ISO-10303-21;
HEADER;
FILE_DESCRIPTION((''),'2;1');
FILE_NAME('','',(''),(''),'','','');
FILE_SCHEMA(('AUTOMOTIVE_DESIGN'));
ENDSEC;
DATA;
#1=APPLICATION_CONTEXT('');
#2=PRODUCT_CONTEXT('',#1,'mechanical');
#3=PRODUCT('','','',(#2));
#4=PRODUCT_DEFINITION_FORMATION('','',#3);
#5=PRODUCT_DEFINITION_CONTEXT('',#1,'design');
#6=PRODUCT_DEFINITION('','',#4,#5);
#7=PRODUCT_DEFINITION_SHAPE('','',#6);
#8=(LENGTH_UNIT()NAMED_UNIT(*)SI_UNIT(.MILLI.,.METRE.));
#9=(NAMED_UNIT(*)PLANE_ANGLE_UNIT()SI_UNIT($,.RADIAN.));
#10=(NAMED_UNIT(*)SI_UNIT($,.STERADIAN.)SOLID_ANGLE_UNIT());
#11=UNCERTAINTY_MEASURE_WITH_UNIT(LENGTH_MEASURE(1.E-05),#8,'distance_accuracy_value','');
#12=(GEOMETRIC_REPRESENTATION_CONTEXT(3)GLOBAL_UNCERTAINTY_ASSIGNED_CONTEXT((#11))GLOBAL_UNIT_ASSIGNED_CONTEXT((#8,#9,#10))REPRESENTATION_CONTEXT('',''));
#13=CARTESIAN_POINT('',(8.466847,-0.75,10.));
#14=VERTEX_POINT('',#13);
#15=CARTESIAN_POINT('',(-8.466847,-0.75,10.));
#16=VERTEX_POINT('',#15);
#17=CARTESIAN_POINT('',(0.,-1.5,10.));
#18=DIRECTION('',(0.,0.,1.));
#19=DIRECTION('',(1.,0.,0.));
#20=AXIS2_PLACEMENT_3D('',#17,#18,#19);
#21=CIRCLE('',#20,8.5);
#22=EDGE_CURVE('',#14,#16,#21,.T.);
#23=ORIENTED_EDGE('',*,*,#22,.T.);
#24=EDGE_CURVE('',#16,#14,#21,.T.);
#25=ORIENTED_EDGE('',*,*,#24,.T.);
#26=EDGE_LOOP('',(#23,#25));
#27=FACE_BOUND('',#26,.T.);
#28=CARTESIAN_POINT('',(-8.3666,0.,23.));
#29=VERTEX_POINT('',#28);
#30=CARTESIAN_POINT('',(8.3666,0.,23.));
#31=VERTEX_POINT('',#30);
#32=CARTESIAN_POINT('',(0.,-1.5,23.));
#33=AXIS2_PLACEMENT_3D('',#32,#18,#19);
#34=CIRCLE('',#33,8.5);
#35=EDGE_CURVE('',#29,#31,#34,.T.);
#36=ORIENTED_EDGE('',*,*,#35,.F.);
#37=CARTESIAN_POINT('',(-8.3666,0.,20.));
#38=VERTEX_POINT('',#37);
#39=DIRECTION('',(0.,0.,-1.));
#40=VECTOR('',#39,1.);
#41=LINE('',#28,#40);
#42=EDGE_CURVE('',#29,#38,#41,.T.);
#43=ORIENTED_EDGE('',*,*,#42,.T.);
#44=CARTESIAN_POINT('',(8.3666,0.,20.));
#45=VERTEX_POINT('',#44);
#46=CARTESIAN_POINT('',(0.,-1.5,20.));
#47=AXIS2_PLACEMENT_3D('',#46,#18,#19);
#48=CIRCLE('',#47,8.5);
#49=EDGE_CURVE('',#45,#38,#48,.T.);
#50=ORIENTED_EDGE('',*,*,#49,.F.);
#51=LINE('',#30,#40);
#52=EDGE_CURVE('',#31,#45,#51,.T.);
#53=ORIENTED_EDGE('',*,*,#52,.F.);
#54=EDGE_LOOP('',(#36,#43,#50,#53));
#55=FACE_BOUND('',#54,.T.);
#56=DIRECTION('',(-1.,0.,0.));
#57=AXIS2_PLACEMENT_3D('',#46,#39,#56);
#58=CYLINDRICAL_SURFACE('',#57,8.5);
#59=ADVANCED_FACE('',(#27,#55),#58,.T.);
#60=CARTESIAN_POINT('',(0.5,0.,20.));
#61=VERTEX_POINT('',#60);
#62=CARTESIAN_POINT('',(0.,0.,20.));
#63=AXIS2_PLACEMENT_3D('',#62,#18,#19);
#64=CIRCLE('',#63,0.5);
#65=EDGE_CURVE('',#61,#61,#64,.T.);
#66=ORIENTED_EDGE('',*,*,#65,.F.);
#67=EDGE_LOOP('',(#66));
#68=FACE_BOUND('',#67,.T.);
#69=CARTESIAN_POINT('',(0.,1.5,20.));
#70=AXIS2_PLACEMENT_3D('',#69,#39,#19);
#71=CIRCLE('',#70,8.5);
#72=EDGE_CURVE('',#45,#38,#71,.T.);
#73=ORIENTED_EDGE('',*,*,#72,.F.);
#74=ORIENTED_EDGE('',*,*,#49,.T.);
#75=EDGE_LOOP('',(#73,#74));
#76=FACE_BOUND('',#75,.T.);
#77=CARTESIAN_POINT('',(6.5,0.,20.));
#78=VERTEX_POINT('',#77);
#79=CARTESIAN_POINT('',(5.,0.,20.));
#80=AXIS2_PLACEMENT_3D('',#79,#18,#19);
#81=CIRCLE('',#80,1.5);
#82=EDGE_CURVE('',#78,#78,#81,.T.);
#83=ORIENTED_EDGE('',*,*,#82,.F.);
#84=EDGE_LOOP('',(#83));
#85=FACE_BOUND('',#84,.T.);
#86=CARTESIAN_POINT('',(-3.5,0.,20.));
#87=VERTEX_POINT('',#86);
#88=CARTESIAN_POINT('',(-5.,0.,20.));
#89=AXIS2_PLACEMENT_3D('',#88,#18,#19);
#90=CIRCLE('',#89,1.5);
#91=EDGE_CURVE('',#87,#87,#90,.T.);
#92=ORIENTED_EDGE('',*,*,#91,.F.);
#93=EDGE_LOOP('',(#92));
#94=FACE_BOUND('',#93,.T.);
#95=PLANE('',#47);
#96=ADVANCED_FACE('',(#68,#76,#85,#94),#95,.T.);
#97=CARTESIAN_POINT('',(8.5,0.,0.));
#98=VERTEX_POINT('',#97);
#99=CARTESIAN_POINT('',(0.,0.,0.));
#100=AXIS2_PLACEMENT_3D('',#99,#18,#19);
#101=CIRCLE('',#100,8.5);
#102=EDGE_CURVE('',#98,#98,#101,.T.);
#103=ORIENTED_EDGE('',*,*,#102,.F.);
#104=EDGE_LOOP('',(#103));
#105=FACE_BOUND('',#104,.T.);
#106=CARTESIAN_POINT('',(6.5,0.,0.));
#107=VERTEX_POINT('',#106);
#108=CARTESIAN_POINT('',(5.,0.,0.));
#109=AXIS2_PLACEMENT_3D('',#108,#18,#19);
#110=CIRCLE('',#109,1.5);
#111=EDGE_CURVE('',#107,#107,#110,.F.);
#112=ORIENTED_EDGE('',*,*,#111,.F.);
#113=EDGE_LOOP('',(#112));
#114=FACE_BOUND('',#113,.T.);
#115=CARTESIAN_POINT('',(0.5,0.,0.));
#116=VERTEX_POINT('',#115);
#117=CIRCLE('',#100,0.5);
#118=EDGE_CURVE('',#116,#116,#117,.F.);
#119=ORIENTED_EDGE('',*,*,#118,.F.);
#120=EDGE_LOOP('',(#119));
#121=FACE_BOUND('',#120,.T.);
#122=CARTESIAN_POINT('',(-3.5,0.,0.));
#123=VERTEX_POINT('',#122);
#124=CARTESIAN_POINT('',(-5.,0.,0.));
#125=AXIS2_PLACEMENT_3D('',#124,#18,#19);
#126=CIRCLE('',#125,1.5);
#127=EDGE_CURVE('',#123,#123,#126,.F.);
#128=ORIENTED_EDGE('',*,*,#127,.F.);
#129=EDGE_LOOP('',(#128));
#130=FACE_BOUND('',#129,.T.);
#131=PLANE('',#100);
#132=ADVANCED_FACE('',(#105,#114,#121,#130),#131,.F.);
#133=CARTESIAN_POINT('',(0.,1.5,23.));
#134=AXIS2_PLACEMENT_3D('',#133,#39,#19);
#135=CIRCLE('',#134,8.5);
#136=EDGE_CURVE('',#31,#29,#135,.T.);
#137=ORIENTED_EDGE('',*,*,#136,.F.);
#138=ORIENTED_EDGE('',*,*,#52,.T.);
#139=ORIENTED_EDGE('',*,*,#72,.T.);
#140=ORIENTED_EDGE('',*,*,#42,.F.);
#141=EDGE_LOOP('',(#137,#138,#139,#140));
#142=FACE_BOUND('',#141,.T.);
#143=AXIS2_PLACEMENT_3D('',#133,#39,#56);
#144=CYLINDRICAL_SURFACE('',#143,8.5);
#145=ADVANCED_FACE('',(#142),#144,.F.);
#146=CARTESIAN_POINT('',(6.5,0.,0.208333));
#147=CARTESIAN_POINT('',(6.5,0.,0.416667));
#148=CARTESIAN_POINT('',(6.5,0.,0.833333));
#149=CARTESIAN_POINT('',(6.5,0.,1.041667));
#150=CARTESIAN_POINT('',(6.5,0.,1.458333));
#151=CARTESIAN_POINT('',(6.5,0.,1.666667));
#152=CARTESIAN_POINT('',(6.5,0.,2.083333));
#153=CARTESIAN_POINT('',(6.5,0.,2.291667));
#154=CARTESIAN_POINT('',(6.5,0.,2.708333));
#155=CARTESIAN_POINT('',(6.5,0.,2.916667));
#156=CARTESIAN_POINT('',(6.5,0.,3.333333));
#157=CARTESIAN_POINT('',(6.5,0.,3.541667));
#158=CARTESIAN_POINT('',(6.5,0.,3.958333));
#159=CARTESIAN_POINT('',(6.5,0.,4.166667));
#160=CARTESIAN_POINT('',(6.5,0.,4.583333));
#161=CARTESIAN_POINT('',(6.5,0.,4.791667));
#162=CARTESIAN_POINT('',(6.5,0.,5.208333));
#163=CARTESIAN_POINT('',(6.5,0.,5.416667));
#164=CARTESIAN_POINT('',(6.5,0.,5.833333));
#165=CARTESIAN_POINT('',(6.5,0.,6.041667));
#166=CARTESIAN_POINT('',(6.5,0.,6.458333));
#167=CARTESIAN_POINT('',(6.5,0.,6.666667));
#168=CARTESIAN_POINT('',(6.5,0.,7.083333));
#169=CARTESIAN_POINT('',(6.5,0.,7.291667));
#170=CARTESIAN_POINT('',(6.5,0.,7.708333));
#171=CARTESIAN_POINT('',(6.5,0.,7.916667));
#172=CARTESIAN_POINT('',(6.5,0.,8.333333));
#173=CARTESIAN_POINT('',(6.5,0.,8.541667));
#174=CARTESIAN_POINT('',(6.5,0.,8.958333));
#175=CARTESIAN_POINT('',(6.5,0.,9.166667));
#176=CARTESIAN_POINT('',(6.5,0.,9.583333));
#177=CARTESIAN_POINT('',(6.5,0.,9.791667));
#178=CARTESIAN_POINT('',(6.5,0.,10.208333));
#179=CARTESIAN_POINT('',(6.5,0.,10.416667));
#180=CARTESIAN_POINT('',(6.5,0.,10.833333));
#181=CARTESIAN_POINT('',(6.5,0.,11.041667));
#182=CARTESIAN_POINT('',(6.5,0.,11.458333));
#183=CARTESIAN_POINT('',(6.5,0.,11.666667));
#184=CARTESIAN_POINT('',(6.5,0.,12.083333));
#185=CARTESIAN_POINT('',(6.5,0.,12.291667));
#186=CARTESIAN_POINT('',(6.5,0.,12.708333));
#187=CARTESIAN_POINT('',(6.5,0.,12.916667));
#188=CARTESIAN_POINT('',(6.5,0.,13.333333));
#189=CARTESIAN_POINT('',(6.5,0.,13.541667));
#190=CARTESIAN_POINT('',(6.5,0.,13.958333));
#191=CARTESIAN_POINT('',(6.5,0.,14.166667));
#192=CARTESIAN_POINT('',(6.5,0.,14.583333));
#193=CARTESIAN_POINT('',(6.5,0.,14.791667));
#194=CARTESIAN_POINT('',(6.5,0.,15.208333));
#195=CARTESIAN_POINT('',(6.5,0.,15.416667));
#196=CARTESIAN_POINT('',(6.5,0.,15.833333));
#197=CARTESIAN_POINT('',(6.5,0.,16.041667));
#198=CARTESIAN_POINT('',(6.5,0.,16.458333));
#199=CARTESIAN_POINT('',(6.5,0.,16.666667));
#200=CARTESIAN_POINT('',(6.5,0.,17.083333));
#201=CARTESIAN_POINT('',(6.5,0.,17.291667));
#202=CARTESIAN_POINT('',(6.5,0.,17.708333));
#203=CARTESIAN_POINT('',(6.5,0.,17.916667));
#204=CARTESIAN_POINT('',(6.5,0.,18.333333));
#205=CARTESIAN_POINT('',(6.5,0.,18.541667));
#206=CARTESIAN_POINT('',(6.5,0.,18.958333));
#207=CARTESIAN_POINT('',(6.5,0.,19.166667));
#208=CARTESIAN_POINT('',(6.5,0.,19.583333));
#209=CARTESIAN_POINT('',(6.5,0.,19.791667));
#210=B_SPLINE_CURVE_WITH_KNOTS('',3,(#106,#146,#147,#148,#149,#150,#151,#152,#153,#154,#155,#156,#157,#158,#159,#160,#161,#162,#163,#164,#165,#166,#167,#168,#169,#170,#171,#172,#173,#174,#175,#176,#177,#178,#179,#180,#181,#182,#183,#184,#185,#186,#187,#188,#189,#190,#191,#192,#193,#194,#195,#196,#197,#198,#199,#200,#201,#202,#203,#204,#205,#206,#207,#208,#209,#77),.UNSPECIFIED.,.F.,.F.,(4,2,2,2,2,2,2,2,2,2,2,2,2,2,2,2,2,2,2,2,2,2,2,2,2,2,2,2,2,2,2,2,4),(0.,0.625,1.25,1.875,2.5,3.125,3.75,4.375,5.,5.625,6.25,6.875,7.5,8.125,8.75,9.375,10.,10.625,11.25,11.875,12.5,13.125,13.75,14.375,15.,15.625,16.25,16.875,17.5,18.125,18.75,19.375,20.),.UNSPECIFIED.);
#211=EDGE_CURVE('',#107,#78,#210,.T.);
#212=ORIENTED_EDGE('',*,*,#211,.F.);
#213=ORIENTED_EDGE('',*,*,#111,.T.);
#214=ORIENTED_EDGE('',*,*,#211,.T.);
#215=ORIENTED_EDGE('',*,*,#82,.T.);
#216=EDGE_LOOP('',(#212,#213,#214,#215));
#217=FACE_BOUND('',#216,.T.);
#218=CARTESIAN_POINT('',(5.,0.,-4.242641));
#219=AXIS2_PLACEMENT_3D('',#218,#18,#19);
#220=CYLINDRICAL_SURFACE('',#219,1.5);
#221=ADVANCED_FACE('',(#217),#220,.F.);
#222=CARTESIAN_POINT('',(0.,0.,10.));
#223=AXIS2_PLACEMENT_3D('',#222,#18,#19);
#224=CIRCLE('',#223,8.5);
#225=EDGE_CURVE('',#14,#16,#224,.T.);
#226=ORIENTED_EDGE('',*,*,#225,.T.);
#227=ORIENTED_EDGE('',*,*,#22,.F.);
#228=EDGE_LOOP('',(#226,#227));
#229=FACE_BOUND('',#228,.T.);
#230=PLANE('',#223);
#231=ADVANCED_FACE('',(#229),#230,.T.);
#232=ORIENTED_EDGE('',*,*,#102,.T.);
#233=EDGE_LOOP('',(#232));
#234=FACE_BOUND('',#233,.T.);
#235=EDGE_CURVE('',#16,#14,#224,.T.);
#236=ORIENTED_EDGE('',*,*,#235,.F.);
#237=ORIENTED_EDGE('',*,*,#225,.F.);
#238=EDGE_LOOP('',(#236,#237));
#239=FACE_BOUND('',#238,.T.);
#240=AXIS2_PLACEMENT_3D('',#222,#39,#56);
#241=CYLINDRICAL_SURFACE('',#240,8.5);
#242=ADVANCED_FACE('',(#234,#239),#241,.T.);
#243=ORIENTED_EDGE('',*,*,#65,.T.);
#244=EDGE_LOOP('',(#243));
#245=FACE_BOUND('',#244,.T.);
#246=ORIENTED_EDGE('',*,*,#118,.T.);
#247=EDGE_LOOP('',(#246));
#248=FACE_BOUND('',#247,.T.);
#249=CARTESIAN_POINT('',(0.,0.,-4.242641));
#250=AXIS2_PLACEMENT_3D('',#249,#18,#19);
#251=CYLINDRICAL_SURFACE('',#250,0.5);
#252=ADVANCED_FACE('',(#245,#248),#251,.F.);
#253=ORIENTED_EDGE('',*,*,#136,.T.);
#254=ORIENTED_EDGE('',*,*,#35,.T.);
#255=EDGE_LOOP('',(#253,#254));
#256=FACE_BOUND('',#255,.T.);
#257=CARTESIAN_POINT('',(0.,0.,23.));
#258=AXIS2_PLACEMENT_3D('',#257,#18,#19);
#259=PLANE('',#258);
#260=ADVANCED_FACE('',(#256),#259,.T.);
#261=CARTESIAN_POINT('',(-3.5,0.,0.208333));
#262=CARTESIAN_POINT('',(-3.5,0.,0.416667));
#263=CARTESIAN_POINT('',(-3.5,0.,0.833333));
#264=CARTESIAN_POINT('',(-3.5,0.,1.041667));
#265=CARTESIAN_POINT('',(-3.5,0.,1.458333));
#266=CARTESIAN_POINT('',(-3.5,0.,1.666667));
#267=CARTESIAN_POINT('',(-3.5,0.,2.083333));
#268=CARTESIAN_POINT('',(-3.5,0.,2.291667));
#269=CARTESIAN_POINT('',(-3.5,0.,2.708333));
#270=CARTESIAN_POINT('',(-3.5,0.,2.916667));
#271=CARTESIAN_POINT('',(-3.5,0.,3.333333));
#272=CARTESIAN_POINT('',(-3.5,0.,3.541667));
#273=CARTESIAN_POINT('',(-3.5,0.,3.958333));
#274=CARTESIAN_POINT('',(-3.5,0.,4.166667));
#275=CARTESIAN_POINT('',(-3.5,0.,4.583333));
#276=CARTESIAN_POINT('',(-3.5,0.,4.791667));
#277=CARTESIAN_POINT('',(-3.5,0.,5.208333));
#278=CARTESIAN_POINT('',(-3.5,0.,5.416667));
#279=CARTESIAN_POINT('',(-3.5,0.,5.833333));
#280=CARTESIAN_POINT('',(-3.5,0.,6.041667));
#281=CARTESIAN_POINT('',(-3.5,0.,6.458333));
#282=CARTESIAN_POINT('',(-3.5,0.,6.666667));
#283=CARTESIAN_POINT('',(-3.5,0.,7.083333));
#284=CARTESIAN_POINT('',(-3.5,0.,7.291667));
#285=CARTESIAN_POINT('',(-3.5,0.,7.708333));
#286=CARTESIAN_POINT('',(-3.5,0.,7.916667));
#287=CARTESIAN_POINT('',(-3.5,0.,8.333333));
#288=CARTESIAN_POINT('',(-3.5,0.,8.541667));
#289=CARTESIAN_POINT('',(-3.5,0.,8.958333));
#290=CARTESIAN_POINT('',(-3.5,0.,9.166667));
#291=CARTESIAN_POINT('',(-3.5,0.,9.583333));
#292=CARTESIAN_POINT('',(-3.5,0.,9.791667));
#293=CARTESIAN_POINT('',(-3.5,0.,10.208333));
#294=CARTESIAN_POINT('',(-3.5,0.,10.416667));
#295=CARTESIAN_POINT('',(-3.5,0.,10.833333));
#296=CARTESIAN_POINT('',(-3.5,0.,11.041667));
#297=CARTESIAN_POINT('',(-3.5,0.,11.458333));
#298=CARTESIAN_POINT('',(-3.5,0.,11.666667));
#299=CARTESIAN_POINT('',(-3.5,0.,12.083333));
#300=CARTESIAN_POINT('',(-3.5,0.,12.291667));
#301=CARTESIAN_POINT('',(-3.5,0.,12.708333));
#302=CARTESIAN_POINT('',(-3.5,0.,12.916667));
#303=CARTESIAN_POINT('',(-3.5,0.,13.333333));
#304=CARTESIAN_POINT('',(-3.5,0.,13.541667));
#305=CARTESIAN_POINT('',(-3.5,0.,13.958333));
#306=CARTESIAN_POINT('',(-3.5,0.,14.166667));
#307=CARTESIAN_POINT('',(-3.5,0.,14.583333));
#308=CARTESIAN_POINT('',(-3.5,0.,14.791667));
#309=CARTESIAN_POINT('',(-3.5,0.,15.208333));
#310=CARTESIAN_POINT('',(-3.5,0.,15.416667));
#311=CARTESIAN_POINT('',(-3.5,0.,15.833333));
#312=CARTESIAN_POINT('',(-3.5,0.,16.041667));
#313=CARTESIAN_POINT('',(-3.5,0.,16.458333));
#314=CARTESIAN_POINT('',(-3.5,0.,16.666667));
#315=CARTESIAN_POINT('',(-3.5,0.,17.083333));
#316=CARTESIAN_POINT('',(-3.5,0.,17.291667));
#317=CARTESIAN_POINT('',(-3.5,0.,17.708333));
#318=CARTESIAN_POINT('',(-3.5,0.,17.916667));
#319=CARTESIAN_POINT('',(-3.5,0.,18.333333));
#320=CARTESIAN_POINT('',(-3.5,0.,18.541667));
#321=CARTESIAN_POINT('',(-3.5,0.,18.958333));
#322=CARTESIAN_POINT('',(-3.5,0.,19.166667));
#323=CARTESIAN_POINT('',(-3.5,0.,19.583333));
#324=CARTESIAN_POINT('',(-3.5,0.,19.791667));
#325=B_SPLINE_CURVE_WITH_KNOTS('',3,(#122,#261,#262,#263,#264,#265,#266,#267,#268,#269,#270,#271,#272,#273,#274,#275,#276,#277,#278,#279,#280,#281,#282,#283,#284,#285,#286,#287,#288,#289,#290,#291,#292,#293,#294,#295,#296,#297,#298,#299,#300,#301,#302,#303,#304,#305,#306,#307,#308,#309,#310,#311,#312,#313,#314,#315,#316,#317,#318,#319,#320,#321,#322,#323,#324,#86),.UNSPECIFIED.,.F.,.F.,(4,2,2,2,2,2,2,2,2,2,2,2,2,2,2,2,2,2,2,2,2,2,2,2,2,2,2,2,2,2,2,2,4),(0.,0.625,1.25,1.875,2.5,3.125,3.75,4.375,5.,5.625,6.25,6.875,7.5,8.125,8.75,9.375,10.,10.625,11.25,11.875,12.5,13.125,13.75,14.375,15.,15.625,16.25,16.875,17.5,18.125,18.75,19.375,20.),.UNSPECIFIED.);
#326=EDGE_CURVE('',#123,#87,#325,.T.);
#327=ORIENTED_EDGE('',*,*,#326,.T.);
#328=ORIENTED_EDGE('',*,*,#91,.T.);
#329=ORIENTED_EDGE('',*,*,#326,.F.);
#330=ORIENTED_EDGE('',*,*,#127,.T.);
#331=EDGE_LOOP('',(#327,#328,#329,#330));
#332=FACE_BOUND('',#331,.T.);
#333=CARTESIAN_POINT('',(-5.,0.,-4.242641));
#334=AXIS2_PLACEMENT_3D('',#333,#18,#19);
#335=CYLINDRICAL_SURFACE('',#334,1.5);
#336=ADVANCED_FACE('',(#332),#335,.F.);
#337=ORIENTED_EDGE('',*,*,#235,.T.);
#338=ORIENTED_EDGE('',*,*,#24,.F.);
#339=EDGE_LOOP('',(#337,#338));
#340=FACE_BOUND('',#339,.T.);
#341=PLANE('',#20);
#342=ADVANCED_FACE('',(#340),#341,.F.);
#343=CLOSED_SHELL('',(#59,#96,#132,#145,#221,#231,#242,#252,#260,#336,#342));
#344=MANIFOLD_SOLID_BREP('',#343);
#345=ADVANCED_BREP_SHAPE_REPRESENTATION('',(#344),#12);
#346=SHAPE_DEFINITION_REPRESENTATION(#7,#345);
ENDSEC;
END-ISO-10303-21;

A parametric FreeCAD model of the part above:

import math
import FreeCAD as App
import Part
import Sketcher

V = App.Vector

doc = App.newDocument("Part")
params = doc.addObject("Spreadsheet::Sheet", "Params")
for row, (alias, value) in enumerate([
    ("sketch1_diameter", "17 mm"),
    ("pad1_length", "10 mm"),
    ("sketch2_diameter", "17 mm"),
    ("pad2_length", "10 mm"),
    ("sketch3_diameter", "1 mm"),
    ("sketch3_diameter2", "3 mm"),
    ("pocket1_length", "20 mm"),
    ("sketch4_radius", "8.5 mm"),
    ("pad3_length", "3 mm"),
], start=1):
    params.set(f"A{row}", alias)
    params.set(f"B{row}", "=" + value)
    params.setAlias(f"B{row}", alias)

body = doc.addObject("PartDesign::Body", "Body")

sketch1 = body.newObject("Sketcher::SketchObject", "Sketch")
sketch1.AttachmentSupport = (doc.getObject("XY_Plane"), [""])
sketch1.MapMode = "FlatFace"
sketch1.addGeometry(Part.Circle(V(0, 0, 0), V(0, 0, 1), 8), False)
sketch1.addConstraint([
    Sketcher.Constraint("Coincident", 0, 3, -1, 1),
    Sketcher.Constraint("Diameter", 0, 17.0),
])
sketch1.setExpression("Constraints[1]", "Params.sketch1_diameter")
pad1 = body.newObject("PartDesign::Pad", "Pad")
pad1.Profile = sketch1
pad1.setExpression("Length", "Params.pad1_length")

sketch2 = body.newObject("Sketcher::SketchObject", "Sketch001")
sketch2.AttachmentSupport = (doc.getObject("XY_Plane"), [""])
sketch2.MapMode = "FlatFace"
sketch2.AttachmentOffset = App.Placement(V(0, 0, 10), App.Rotation())
sketch2.addGeometry(Part.Circle(V(0, -2, 0), V(0, 0, 1), 8), False)
sketch2.addConstraint([
    Sketcher.Constraint("PointOnObject", 0, 3, -2),
    Sketcher.Constraint("Diameter", 0, 17.0),
    Sketcher.Constraint("DistanceY", 0, 3, -1, 1, 1.5),
])
sketch2.setExpression("Constraints[1]", "Params.sketch2_diameter")
pad2 = body.newObject("PartDesign::Pad", "Pad001")
pad2.Profile = sketch2
pad2.setExpression("Length", "Params.pad2_length")

sketch3 = body.newObject("Sketcher::SketchObject", "Sketch002")
sketch3.AttachmentSupport = (doc.getObject("XY_Plane"), [""])
sketch3.MapMode = "FlatFace"
sketch3.AttachmentOffset = App.Placement(V(0, 0, 20), App.Rotation())
sketch3.addGeometry([
    Part.Circle(V(0, 0, 0), V(0, 0, 1), 0.5),
    Part.Circle(V(-5, 0, 0), V(0, 0, 1), 1.5),
    Part.Circle(V(5, 0, 0), V(0, 0, 1), 1.5),
], False)
sketch3.addConstraint([
    Sketcher.Constraint("Coincident", 0, 3, -1, 1),
    Sketcher.Constraint("Equal", 1, 2),
    Sketcher.Constraint("Symmetric", 1, 3, 2, 3, -1, 1),
    Sketcher.Constraint("PointOnObject", 1, 3, -1),
    Sketcher.Constraint("Diameter", 0, 1.0),
    Sketcher.Constraint("Diameter", 1, 3.0),
    Sketcher.Constraint("DistanceX", 1, 3, -1, 1, 5.0),
])
sketch3.setExpression("Constraints[4]", "Params.sketch3_diameter")
sketch3.setExpression("Constraints[5]", "Params.sketch3_diameter2")
pocket1 = body.newObject("PartDesign::Pocket", "Pocket")
pocket1.Profile = sketch3
pocket1.setExpression("Length", "Params.pocket1_length")

sketch4 = body.newObject("Sketcher::SketchObject", "Sketch003")
sketch4.AttachmentSupport = (doc.getObject("XY_Plane"), [""])
sketch4.MapMode = "FlatFace"
sketch4.AttachmentOffset = App.Placement(V(0, 0, 20), App.Rotation())
sketch4.addGeometry([
    Part.ArcOfCircle(Part.Circle(V(0, 2, 0), V(0, 0, 1), 8), math.radians(-170), math.radians(-10)),
    Part.ArcOfCircle(Part.Circle(V(0, -2, 0), V(0, 0, 1), 8), math.radians(170), math.radians(370)),
], False)
sketch4.addConstraint([
    Sketcher.Constraint("Coincident", 0, 1, 1, 1),
    Sketcher.Constraint("Coincident", 1, 2, 0, 2),
    Sketcher.Constraint("Equal", 0, 1),
    Sketcher.Constraint("Symmetric", 0, 3, 1, 3, -1, 1),
    Sketcher.Constraint("PointOnObject", 0, 3, -2),
    Sketcher.Constraint("Radius", 0, 8.5),
    Sketcher.Constraint("DistanceY", 1, 3, 0, 3, 3.0),
])
sketch4.setExpression("Constraints[5]", "Params.sketch4_radius")
pad3 = body.newObject("PartDesign::Pad", "Pad002")
pad3.Profile = sketch4
pad3.setExpression("Length", "Params.pad3_length")

doc.recompute()
